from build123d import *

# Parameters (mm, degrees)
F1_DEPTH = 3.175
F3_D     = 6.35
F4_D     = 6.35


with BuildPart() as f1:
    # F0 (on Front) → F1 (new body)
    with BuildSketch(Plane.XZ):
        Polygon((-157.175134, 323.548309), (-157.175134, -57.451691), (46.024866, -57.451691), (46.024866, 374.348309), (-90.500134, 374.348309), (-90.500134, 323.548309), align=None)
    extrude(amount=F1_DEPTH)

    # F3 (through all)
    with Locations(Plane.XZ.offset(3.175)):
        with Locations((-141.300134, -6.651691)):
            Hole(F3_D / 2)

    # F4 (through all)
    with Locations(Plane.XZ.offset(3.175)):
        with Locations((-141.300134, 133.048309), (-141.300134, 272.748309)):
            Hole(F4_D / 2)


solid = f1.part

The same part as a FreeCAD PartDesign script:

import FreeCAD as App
import Part
import Sketcher
from FreeCAD import Vector
Q = App.Units.Quantity

doc = App.newDocument("Part")
body = doc.addObject("PartDesign::Body", "Body")

# Sketch on XZ plane
sketch1 = body.newObject("Sketcher::SketchObject", "Sketch")
sketch1.AttachmentSupport = (doc.getObject("XZ_Plane"), [""])
sketch1.MapMode = "FlatFace"
sketch1.addGeometry([
    Part.LineSegment(Vector(-157, 324, 0), Vector(-157, -57, 0)),  # 0
    Part.LineSegment(Vector(-157, -57, 0), Vector(46, -57, 0)),  # 1
    Part.LineSegment(Vector(46, -57, 0), Vector(46, 374, 0)),  # 2
    Part.LineSegment(Vector(46, 374, 0), Vector(-91, 374, 0)),  # 3
    Part.LineSegment(Vector(-91, 374, 0), Vector(-91, 324, 0)),  # 4
    Part.LineSegment(Vector(-91, 324, 0), Vector(-157, 324, 0)),  # 5
], False)
sketch1.addConstraint([
    Sketcher.Constraint("Coincident", 0, 2, 1, 1),
    Sketcher.Constraint("Coincident", 1, 2, 2, 1),
    Sketcher.Constraint("Coincident", 2, 2, 3, 1),
    Sketcher.Constraint("Coincident", 3, 2, 4, 1),
    Sketcher.Constraint("Coincident", 4, 2, 5, 1),
    Sketcher.Constraint("Coincident", 5, 2, 0, 1),
    Sketcher.Constraint("Vertical", 0),
    Sketcher.Constraint("Horizontal", 1),
    Sketcher.Constraint("Vertical", 2),
    Sketcher.Constraint("Horizontal", 3),
    Sketcher.Constraint("Vertical", 4),
    Sketcher.Constraint("Horizontal", 5),
    Sketcher.Constraint("DistanceX", 1, 1, 1, 2, Q("8 in")),
    Sketcher.Constraint("DistanceY", 0, 2, 0, 1, Q("15 in")),
    Sketcher.Constraint("DistanceY", 2, 1, 2, 2, Q("17 in")),
    Sketcher.Constraint("DistanceX", 3, 2, 3, 1, Q("5.375 in")),
    Sketcher.Constraint("DistanceY", 0, 2, -1, 1, 57.451691),
    Sketcher.Constraint("DistanceX", 0, 2, -1, 1, 157.175134),
])
pad1 = body.newObject("PartDesign::Pad", "Pad")
pad1.Profile = sketch1
pad1.Length = Q("0.125 in")

# Sketch on XZ plane
sketch2 = body.newObject("Sketcher::SketchObject", "Sketch001")
sketch2.AttachmentSupport = (doc.getObject("XZ_Plane"), [""])
sketch2.MapMode = "FlatFace"
sketch2.AttachmentOffset = App.Placement(Vector(0, 0, 0.125 * 25.4), App.Rotation())
sketch2.addGeometry(Part.Circle(Vector(-141.3, -6.7, 0), Vector(0, 0, 1), 3.2), False)
sketch2.addConstraint([
    Sketcher.Constraint("Diameter", 0, Q("0.25 in")),
    Sketcher.Constraint("DistanceY", 0, 3, -1, 1, 6.651691),
    Sketcher.Constraint("DistanceX", 0, 3, -1, 1, 141.300134),
])
doc.recompute()
hole = body.newObject("PartDesign::Hole", "Hole")
hole.Profile = sketch2
hole.ThreadType = "None"
hole.Diameter = Q("0.25 in")
hole.DepthType = "ThroughAll"

# Sketch on XZ plane
sketch3 = body.newObject("Sketcher::SketchObject", "Sketch002")
sketch3.AttachmentSupport = (doc.getObject("XZ_Plane"), [""])
sketch3.MapMode = "FlatFace"
sketch3.AttachmentOffset = App.Placement(Vector(0, 0, 0.125 * 25.4), App.Rotation())
sketch3.addGeometry([
    Part.Circle(Vector(-141.3, 133, 0), Vector(0, 0, 1), 3.2),
    Part.Circle(Vector(-141.3, 272.7, 0), Vector(0, 0, 1), 3.2),
], False)
sketch3.addConstraint([
    Sketcher.Constraint("Equal", 0, 1),
    Sketcher.Constraint("Vertical", 0, 3, 1, 3),
    Sketcher.Constraint("Diameter", 0, Q("0.25 in")),
    Sketcher.Constraint("DistanceY", 0, 3, 1, 3, Q("5.5 in")),
    Sketcher.Constraint("DistanceY", -1, 1, 0, 3, 133.048309),
    Sketcher.Constraint("DistanceX", 0, 3, -1, 1, 141.300134),
])
doc.recompute()
hole2 = body.newObject("PartDesign::Hole", "Hole001")
hole2.Profile = sketch3
hole2.ThreadType = "None"
hole2.Diameter = Q("0.25 in")
hole2.DepthType = "ThroughAll"

doc.recompute()
